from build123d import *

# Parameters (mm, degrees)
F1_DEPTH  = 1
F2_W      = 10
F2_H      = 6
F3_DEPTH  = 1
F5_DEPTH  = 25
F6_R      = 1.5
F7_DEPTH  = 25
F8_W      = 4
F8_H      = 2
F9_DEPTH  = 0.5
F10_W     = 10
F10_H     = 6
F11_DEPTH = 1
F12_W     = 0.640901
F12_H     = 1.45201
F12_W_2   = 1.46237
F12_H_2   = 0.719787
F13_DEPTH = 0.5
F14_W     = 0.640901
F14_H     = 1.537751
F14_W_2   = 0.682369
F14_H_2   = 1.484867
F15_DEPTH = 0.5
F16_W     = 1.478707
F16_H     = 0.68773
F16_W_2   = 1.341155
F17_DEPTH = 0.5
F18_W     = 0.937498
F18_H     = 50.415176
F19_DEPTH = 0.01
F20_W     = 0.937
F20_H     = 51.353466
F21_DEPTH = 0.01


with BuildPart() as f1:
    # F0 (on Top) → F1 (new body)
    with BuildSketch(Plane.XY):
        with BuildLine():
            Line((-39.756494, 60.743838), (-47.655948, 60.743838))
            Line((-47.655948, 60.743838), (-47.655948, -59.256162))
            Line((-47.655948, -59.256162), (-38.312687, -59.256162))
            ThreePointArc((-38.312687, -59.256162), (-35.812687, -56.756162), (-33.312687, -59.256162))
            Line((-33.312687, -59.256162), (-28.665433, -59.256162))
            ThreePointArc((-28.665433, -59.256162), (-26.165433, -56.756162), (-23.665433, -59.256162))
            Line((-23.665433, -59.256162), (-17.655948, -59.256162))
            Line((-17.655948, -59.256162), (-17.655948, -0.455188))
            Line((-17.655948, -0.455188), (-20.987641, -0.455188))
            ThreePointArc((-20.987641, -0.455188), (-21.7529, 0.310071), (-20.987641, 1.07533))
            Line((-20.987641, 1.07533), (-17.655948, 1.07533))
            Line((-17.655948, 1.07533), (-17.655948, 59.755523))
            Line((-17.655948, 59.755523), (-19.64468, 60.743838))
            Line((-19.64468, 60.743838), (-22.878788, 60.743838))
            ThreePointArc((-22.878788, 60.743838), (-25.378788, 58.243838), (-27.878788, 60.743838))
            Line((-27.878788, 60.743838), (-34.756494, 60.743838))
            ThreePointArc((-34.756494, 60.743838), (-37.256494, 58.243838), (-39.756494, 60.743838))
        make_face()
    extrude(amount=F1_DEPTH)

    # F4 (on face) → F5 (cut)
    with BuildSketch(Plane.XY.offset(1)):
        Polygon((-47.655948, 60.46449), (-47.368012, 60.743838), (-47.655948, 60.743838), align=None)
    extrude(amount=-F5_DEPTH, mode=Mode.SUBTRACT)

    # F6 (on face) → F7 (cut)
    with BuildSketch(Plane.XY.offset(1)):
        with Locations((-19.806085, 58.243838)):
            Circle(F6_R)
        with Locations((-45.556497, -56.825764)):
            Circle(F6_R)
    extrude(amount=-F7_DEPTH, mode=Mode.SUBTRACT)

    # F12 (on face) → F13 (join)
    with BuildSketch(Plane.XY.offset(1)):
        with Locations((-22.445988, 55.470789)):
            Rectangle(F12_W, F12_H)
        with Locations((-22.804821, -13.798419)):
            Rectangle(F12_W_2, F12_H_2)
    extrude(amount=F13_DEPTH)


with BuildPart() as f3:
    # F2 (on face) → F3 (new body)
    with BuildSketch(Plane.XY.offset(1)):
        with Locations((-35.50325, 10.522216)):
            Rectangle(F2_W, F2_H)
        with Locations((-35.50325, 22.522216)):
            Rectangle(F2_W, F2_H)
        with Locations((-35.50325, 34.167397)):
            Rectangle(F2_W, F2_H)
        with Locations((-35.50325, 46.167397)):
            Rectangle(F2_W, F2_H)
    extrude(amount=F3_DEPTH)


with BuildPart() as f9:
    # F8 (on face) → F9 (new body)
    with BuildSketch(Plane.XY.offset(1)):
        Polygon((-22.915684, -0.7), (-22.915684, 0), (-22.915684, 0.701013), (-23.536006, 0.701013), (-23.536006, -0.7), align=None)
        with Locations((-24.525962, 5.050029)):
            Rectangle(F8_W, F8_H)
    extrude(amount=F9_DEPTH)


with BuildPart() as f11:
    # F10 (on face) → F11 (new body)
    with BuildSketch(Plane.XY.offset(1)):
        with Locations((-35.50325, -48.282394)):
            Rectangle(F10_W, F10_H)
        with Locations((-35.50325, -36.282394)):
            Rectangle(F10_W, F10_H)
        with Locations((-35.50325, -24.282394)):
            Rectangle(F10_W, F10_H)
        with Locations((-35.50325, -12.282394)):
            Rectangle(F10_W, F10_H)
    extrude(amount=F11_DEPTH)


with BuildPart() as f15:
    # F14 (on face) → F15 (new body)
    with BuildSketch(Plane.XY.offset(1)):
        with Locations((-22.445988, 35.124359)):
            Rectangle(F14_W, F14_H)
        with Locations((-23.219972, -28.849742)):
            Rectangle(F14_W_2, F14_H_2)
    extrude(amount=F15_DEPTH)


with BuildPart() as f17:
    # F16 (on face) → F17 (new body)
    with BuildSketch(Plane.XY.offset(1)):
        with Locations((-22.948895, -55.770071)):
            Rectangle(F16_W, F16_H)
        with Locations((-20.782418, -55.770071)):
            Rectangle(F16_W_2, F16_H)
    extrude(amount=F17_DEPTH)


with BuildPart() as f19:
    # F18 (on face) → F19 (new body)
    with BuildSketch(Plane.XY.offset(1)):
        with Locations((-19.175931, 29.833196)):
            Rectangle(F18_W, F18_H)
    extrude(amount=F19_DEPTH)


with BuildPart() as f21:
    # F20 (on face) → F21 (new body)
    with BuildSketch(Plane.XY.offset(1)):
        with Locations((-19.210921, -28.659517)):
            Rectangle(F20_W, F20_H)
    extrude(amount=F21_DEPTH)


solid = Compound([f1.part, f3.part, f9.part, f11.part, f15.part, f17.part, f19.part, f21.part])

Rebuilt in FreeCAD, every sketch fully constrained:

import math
import FreeCAD as App
import Part
import Sketcher

doc = App.newDocument("Part")
body = doc.addObject("PartDesign::Body", "Body")

# Sketch on XY plane
sketch1 = body.newObject("Sketcher::SketchObject", "Sketch")
sketch1.AttachmentSupport = (doc.getObject("XY_Plane"), [""])
sketch1.MapMode = "FlatFace"
sketch1.addGeometry(Part.LineSegment(App.Vector(-39.8, 60.7, 0), App.Vector(-47.7, 60.7, 0)), False)
sketch1.addGeometry(Part.LineSegment(App.Vector(-47.7, 60.7, 0), App.Vector(-47.7, -59.3, 0)), False)
sketch1.addGeometry(Part.LineSegment(App.Vector(-47.7, -59.3, 0), App.Vector(-38.3, -59.3, 0)), False)
sketch1.addGeometry(Part.ArcOfCircle(Part.Circle(App.Vector(-35.8, -59.3, 0), App.Vector(0, 0, 1), 2.5), math.radians(0), math.radians(180)), False)
sketch1.addGeometry(Part.LineSegment(App.Vector(-33.3, -59.3, 0), App.Vector(-28.7, -59.3, 0)), False)
sketch1.addGeometry(Part.ArcOfCircle(Part.Circle(App.Vector(-26.2, -59.3, 0), App.Vector(0, 0, 1), 2.5), math.radians(0), math.radians(180)), False)
sketch1.addGeometry(Part.LineSegment(App.Vector(-23.7, -59.3, 0), App.Vector(-17.7, -59.3, 0)), False)
sketch1.addGeometry(Part.LineSegment(App.Vector(-17.7, -59.3, 0), App.Vector(-17.7, -0.5, 0)), False)
sketch1.addGeometry(Part.LineSegment(App.Vector(-17.7, -0.5, 0), App.Vector(-21, -0.5, 0)), False)
sketch1.addGeometry(Part.ArcOfCircle(Part.Circle(App.Vector(-21, 0.3, 0), App.Vector(0, 0, 1), 0.8), math.radians(90), math.radians(270)), False)
sketch1.addGeometry(Part.LineSegment(App.Vector(-21, 1.1, 0), App.Vector(-17.7, 1.1, 0)), False)
sketch1.addGeometry(Part.LineSegment(App.Vector(-17.7, 1.1, 0), App.Vector(-17.7, 59.8, 0)), False)
sketch1.addGeometry(Part.LineSegment(App.Vector(-17.7, 59.8, 0), App.Vector(-19.6, 60.7, 0)), False)
sketch1.addGeometry(Part.LineSegment(App.Vector(-19.6, 60.7, 0), App.Vector(-22.9, 60.7, 0)), False)
sketch1.addGeometry(Part.ArcOfCircle(Part.Circle(App.Vector(-25.4, 60.7, 0), App.Vector(0, 0, 1), 2.5), math.radians(180), math.radians(360)), False)
sketch1.addGeometry(Part.LineSegment(App.Vector(-27.9, 60.7, 0), App.Vector(-34.8, 60.7, 0)), False)
sketch1.addGeometry(Part.ArcOfCircle(Part.Circle(App.Vector(-37.3, 60.7, 0), App.Vector(0, 0, 1), 2.5), math.radians(180), math.radians(360)), False)
sketch1.addConstraint(Sketcher.Constraint("Coincident", 0, 2, 1, 1))
sketch1.addConstraint(Sketcher.Constraint("Coincident", 1, 2, 2, 1))
sketch1.addConstraint(Sketcher.Constraint("Coincident", 2, 2, 3, 2))
sketch1.addConstraint(Sketcher.Constraint("Coincident", 3, 1, 4, 1))
sketch1.addConstraint(Sketcher.Constraint("Coincident", 4, 2, 5, 2))
sketch1.addConstraint(Sketcher.Constraint("Coincident", 5, 1, 6, 1))
sketch1.addConstraint(Sketcher.Constraint("Coincident", 6, 2, 7, 1))
sketch1.addConstraint(Sketcher.Constraint("Coincident", 7, 2, 8, 1))
sketch1.addConstraint(Sketcher.Constraint("Tangent", 8, 2, 9, 2))
sketch1.addConstraint(Sketcher.Constraint("Tangent", 9, 1, 10, 1))
sketch1.addConstraint(Sketcher.Constraint("Coincident", 10, 2, 11, 1))
sketch1.addConstraint(Sketcher.Constraint("Coincident", 11, 2, 12, 1))
sketch1.addConstraint(Sketcher.Constraint("Coincident", 12, 2, 13, 1))
sketch1.addConstraint(Sketcher.Constraint("Coincident", 13, 2, 14, 2))
sketch1.addConstraint(Sketcher.Constraint("Coincident", 14, 1, 15, 1))
sketch1.addConstraint(Sketcher.Constraint("Coincident", 15, 2, 16, 2))
sketch1.addConstraint(Sketcher.Constraint("Coincident", 16, 1, 0, 1))
sketch1.addConstraint(Sketcher.Constraint("Horizontal", 0))
sketch1.addConstraint(Sketcher.Constraint("Vertical", 1))
sketch1.addConstraint(Sketcher.Constraint("Horizontal", 2))
sketch1.addConstraint(Sketcher.Constraint("Horizontal", 4))
sketch1.addConstraint(Sketcher.Constraint("Horizontal", 6))
sketch1.addConstraint(Sketcher.Constraint("Vertical", 7))
sketch1.addConstraint(Sketcher.Constraint("Horizontal", 8))
sketch1.addConstraint(Sketcher.Constraint("Horizontal", 10))
sketch1.addConstraint(Sketcher.Constraint("Vertical", 11))
sketch1.addConstraint(Sketcher.Constraint("Horizontal", 13))
sketch1.addConstraint(Sketcher.Constraint("Horizontal", 15))
sketch1.addConstraint(Sketcher.Constraint("Equal", 3, 5))
sketch1.addConstraint(Sketcher.Constraint("Equal", 5, 14))
sketch1.addConstraint(Sketcher.Constraint("Equal", 14, 16))
sketch1.addConstraint(Sketcher.Constraint("Horizontal", 3, 3, 5, 3))
sketch1.addConstraint(Sketcher.Constraint("Horizontal", 14, 3, 16, 3))
sketch1.addConstraint(Sketcher.Constraint("Horizontal", 16, 3, 0, 2))
sketch1.addConstraint(Sketcher.Constraint("Horizontal", 5, 3, 1, 2))
sketch1.addConstraint(Sketcher.Constraint("Horizontal", 2, 2, 3, 1))
sketch1.addConstraint(Sketcher.Constraint("Horizontal", 4, 2, 5, 1))
sketch1.addConstraint(Sketcher.Constraint("Horizontal", 0, 2, 12, 2))
sketch1.addConstraint(Sketcher.Constraint("Horizontal", 13, 2, 14, 1))
sketch1.addConstraint(Sketcher.Constraint("Vertical", 7, 2, 10, 2))
sketch1.addConstraint(Sketcher.Constraint("Radius", 3, 2.5))
sketch1.addConstraint(Sketcher.Constraint("DistanceY", 1, 2, 1, 1, 120.0))
sketch1.addConstraint(Sketcher.Constraint("DistanceX", 0, 2, 11, 2, 30.0))
sketch1.addConstraint(Sketcher.Constraint("Radius", 9, 0.765259))
sketch1.addConstraint(Sketcher.Constraint("DistanceX", 2, 1, 2, 2, 9.343261))
sketch1.addConstraint(Sketcher.Constraint("DistanceX", 3, 3, 14, 3, 10.433899))
sketch1.addConstraint(Sketcher.Constraint("Distance", 12, 2.22077))
sketch1.addConstraint(Sketcher.Constraint("DistanceX", 0, 2, 0, 1, 7.899454))
sketch1.addConstraint(Sketcher.Constraint("DistanceX", 4, 1, 4, 2, 4.647254))
sketch1.addConstraint(Sketcher.Constraint("DistanceX", 8, 2, 8, 1, 3.331693))
sketch1.addConstraint(Sketcher.Constraint("DistanceX", 13, 2, 13, 1, 3.234108))
sketch1.addConstraint(Sketcher.Constraint("DistanceY", 7, 1, 7, 2, 58.800974))
sketch1.addConstraint(Sketcher.Constraint("DistanceX", 9, 3, -1, 1, 20.987641))
sketch1.addConstraint(Sketcher.Constraint("DistanceY", -1, 1, 9, 3, 0.310071))
pad1 = body.newObject("PartDesign::Pad", "Pad")
pad1.Profile = sketch1
pad1.Length = 1

# Sketch on XY plane
sketch2 = body.newObject("Sketcher::SketchObject", "Sketch001")
sketch2.AttachmentSupport = (doc.getObject("XY_Plane"), [""])
sketch2.MapMode = "FlatFace"
sketch2.AttachmentOffset = App.Placement(App.Vector(0, 0, 1), App.Rotation())
sketch2.addGeometry(Part.LineSegment(App.Vector(-47.66, 60.46, 0), App.Vector(-47.37, 60.74, 0)), False)
sketch2.addGeometry(Part.LineSegment(App.Vector(-47.37, 60.74, 0), App.Vector(-47.66, 60.74, 0)), False)
sketch2.addGeometry(Part.LineSegment(App.Vector(-47.66, 60.74, 0), App.Vector(-47.66, 60.46, 0)), False)
sketch2.addConstraint(Sketcher.Constraint("Coincident", 0, 2, 1, 1))
sketch2.addConstraint(Sketcher.Constraint("Coincident", 1, 2, 2, 1))
sketch2.addConstraint(Sketcher.Constraint("Coincident", 2, 2, 0, 1))
sketch2.addConstraint(Sketcher.Constraint("Horizontal", 1))
sketch2.addConstraint(Sketcher.Constraint("Vertical", 2))
sketch2.addConstraint(Sketcher.Constraint("DistanceX", 1, 2, 1, 1, 0.287936))
sketch2.addConstraint(Sketcher.Constraint("DistanceY", 2, 2, 2, 1, 0.279348))
sketch2.addConstraint(Sketcher.Constraint("DistanceX", 1, 2, -1, 1, 47.655948))
sketch2.addConstraint(Sketcher.Constraint("DistanceY", -1, 1, 2, 2, 60.46449))
pocket1 = body.newObject("PartDesign::Pocket", "Pocket")
pocket1.Profile = sketch2
pocket1.Length = 25

# Sketch on XY plane
sketch3 = body.newObject("Sketcher::SketchObject", "Sketch002")
sketch3.AttachmentSupport = (doc.getObject("XY_Plane"), [""])
sketch3.MapMode = "FlatFace"
sketch3.AttachmentOffset = App.Placement(App.Vector(0, 0, 1), App.Rotation())
sketch3.addGeometry(Part.Circle(App.Vector(-19.8, 58.2, 0), App.Vector(0, 0, 1), 1.5), False)
sketch3.addGeometry(Part.Circle(App.Vector(-45.6, -56.8, 0), App.Vector(0, 0, 1), 1.5), False)
sketch3.addConstraint(Sketcher.Constraint("Equal", 0, 1))
sketch3.addConstraint(Sketcher.Constraint("Diameter", 0, 3.0))
sketch3.addConstraint(Sketcher.Constraint("DistanceX", 0, 3, -1, 1, 19.806085))
sketch3.addConstraint(Sketcher.Constraint("DistanceY", -1, 1, 0, 3, 58.243838))
sketch3.addConstraint(Sketcher.Constraint("DistanceX", 1, 3, -1, 1, 45.556497))
sketch3.addConstraint(Sketcher.Constraint("DistanceY", 1, 3, -1, 1, 56.825764))
pocket2 = body.newObject("PartDesign::Pocket", "Pocket001")
pocket2.Profile = sketch3
pocket2.Length = 25

# Sketch on XY plane
sketch4 = body.newObject("Sketcher::SketchObject", "Sketch003")
sketch4.AttachmentSupport = (doc.getObject("XY_Plane"), [""])
sketch4.MapMode = "FlatFace"
sketch4.AttachmentOffset = App.Placement(App.Vector(0, 0, 1), App.Rotation())
sketch4.addGeometry(Part.LineSegment(App.Vector(-22.8, 56.2, 0), App.Vector(-22.8, 54.7, 0)), False)
sketch4.addGeometry(Part.LineSegment(App.Vector(-22.8, 54.7, 0), App.Vector(-22.1, 54.7, 0)), False)
sketch4.addGeometry(Part.LineSegment(App.Vector(-22.1, 54.7, 0), App.Vector(-22.1, 56.2, 0)), False)
sketch4.addGeometry(Part.LineSegment(App.Vector(-22.1, 56.2, 0), App.Vector(-22.8, 56.2, 0)), False)
sketch4.addGeometry(Part.LineSegment(App.Vector(-23.5, -13.4, 0), App.Vector(-23.5, -14.2, 0)), False)
sketch4.addGeometry(Part.LineSegment(App.Vector(-23.5, -14.2, 0), App.Vector(-22.1, -14.2, 0)), False)
sketch4.addGeometry(Part.LineSegment(App.Vector(-22.1, -14.2, 0), App.Vector(-22.1, -13.4, 0)), False)
sketch4.addGeometry(Part.LineSegment(App.Vector(-22.1, -13.4, 0), App.Vector(-23.5, -13.4, 0)), False)
sketch4.addConstraint(Sketcher.Constraint("Coincident", 0, 2, 1, 1))
sketch4.addConstraint(Sketcher.Constraint("Coincident", 1, 2, 2, 1))
sketch4.addConstraint(Sketcher.Constraint("Coincident", 2, 2, 3, 1))
sketch4.addConstraint(Sketcher.Constraint("Coincident", 3, 2, 0, 1))
sketch4.addConstraint(Sketcher.Constraint("Coincident", 4, 2, 5, 1))
sketch4.addConstraint(Sketcher.Constraint("Coincident", 5, 2, 6, 1))
sketch4.addConstraint(Sketcher.Constraint("Coincident", 6, 2, 7, 1))
sketch4.addConstraint(Sketcher.Constraint("Coincident", 7, 2, 4, 1))
sketch4.addConstraint(Sketcher.Constraint("Vertical", 0))
sketch4.addConstraint(Sketcher.Constraint("Horizontal", 1))
sketch4.addConstraint(Sketcher.Constraint("Vertical", 2))
sketch4.addConstraint(Sketcher.Constraint("Horizontal", 3))
sketch4.addConstraint(Sketcher.Constraint("Vertical", 4))
sketch4.addConstraint(Sketcher.Constraint("Horizontal", 5))
sketch4.addConstraint(Sketcher.Constraint("Vertical", 6))
sketch4.addConstraint(Sketcher.Constraint("Horizontal", 7))
sketch4.addConstraint(Sketcher.Constraint("DistanceX", 1, 1, 1, 2, 0.640901))
sketch4.addConstraint(Sketcher.Constraint("DistanceX", 5, 1, 5, 2, 1.46237))
sketch4.addConstraint(Sketcher.Constraint("DistanceY", 0, 2, 0, 1, 1.45201))
sketch4.addConstraint(Sketcher.Constraint("DistanceX", 1, 2, 5, 2, 0.051901))
sketch4.addConstraint(Sketcher.Constraint("DistanceY", 4, 2, 4, 1, 0.719787))
sketch4.addConstraint(Sketcher.Constraint("DistanceX", 0, 2, -1, 1, 22.766438))
sketch4.addConstraint(Sketcher.Constraint("DistanceY", 6, 2, 1, 2, 68.18331))
sketch4.addConstraint(Sketcher.Constraint("DistanceY", -1, 1, 0, 2, 54.744784))
pad2 = body.newObject("PartDesign::Pad", "Pad001")
pad2.Profile = sketch4
pad2.Length = 0.5
body2 = doc.addObject("PartDesign::Body", "Body001")
body2.AllowCompound = True

# Sketch on XY plane
sketch5 = body2.newObject("Sketcher::SketchObject", "Sketch004")
sketch5.AttachmentSupport = (doc.getObject("XY_Plane001"), [""])
sketch5.MapMode = "FlatFace"
sketch5.AttachmentOffset = App.Placement(App.Vector(0, 0, 1), App.Rotation())
sketch5.addGeometry(Part.LineSegment(App.Vector(-41, 14, 0), App.Vector(-41, 8, 0)), False)
sketch5.addGeometry(Part.LineSegment(App.Vector(-41, 8, 0), App.Vector(-31, 8, 0)), False)
sketch5.addGeometry(Part.LineSegment(App.Vector(-31, 8, 0), App.Vector(-31, 14, 0)), False)
sketch5.addGeometry(Part.LineSegment(App.Vector(-31, 14, 0), App.Vector(-41, 14, 0)), False)
sketch5.addGeometry(Part.LineSegment(App.Vector(-41, 26, 0), App.Vector(-41, 20, 0)), False)
sketch5.addGeometry(Part.LineSegment(App.Vector(-41, 20, 0), App.Vector(-31, 20, 0)), False)
sketch5.addGeometry(Part.LineSegment(App.Vector(-31, 20, 0), App.Vector(-31, 26, 0)), False)
sketch5.addGeometry(Part.LineSegment(App.Vector(-31, 26, 0), App.Vector(-41, 26, 0)), False)
sketch5.addGeometry(Part.LineSegment(App.Vector(-41, 37, 0), App.Vector(-41, 31, 0)), False)
sketch5.addGeometry(Part.LineSegment(App.Vector(-41, 31, 0), App.Vector(-31, 31, 0)), False)
sketch5.addGeometry(Part.LineSegment(App.Vector(-31, 31, 0), App.Vector(-31, 37, 0)), False)
sketch5.addGeometry(Part.LineSegment(App.Vector(-31, 37, 0), App.Vector(-41, 37, 0)), False)
sketch5.addGeometry(Part.LineSegment(App.Vector(-41, 49, 0), App.Vector(-41, 43, 0)), False)
sketch5.addGeometry(Part.LineSegment(App.Vector(-41, 43, 0), App.Vector(-31, 43, 0)), False)
sketch5.addGeometry(Part.LineSegment(App.Vector(-31, 43, 0), App.Vector(-31, 49, 0)), False)
sketch5.addGeometry(Part.LineSegment(App.Vector(-31, 49, 0), App.Vector(-41, 49, 0)), False)
sketch5.addConstraint(Sketcher.Constraint("Coincident", 0, 2, 1, 1))
sketch5.addConstraint(Sketcher.Constraint("Coincident", 1, 2, 2, 1))
sketch5.addConstraint(Sketcher.Constraint("Coincident", 2, 2, 3, 1))
sketch5.addConstraint(Sketcher.Constraint("Coincident", 3, 2, 0, 1))
sketch5.addConstraint(Sketcher.Constraint("Coincident", 4, 2, 5, 1))
sketch5.addConstraint(Sketcher.Constraint("Coincident", 5, 2, 6, 1))
sketch5.addConstraint(Sketcher.Constraint("Coincident", 6, 2, 7, 1))
sketch5.addConstraint(Sketcher.Constraint("Coincident", 7, 2, 4, 1))
sketch5.addConstraint(Sketcher.Constraint("Coincident", 8, 2, 9, 1))
sketch5.addConstraint(Sketcher.Constraint("Coincident", 9, 2, 10, 1))
sketch5.addConstraint(Sketcher.Constraint("Coincident", 10, 2, 11, 1))
sketch5.addConstraint(Sketcher.Constraint("Coincident", 11, 2, 8, 1))
sketch5.addConstraint(Sketcher.Constraint("Coincident", 12, 2, 13, 1))
sketch5.addConstraint(Sketcher.Constraint("Coincident", 13, 2, 14, 1))
sketch5.addConstraint(Sketcher.Constraint("Coincident", 14, 2, 15, 1))
sketch5.addConstraint(Sketcher.Constraint("Coincident", 15, 2, 12, 1))
sketch5.addConstraint(Sketcher.Constraint("Vertical", 0))
sketch5.addConstraint(Sketcher.Constraint("Horizontal", 1))
sketch5.addConstraint(Sketcher.Constraint("Vertical", 2))
sketch5.addConstraint(Sketcher.Constraint("Horizontal", 3))
sketch5.addConstraint(Sketcher.Constraint("Vertical", 4))
sketch5.addConstraint(Sketcher.Constraint("Horizontal", 5))
sketch5.addConstraint(Sketcher.Constraint("Vertical", 6))
sketch5.addConstraint(Sketcher.Constraint("Horizontal", 7))
sketch5.addConstraint(Sketcher.Constraint("Vertical", 8))
sketch5.addConstraint(Sketcher.Constraint("Horizontal", 9))
sketch5.addConstraint(Sketcher.Constraint("Vertical", 10))
sketch5.addConstraint(Sketcher.Constraint("Horizontal", 11))
sketch5.addConstraint(Sketcher.Constraint("Vertical", 12))
sketch5.addConstraint(Sketcher.Constraint("Horizontal", 13))
sketch5.addConstraint(Sketcher.Constraint("Vertical", 14))
sketch5.addConstraint(Sketcher.Constraint("Horizontal", 15))
sketch5.addConstraint(Sketcher.Constraint("Vertical", 3, 2, 4, 2))
sketch5.addConstraint(Sketcher.Constraint("Vertical", 2, 2, 5, 2))
sketch5.addConstraint(Sketcher.Constraint("Vertical", 7, 2, 8, 2))
sketch5.addConstraint(Sketcher.Constraint("Vertical", 6, 2, 9, 2))
sketch5.addConstraint(Sketcher.Constraint("Vertical", 11, 2, 12, 2))
sketch5.addConstraint(Sketcher.Constraint("Vertical", 10, 2, 13, 2))
sketch5.addConstraint(Sketcher.Constraint("Equal", 2, 4))
sketch5.addConstraint(Sketcher.Constraint("Equal", 6, 8))
sketch5.addConstraint(Sketcher.Constraint("Equal", 10, 12))
sketch5.addConstraint(Sketcher.Constraint("DistanceX", 1, 1, 1, 2, 10.0))
sketch5.addConstraint(Sketcher.Constraint("DistanceY", 0, 2, 0, 1, 6.0))
sketch5.addConstraint(Sketcher.Constraint("DistanceY", 3, 2, 4, 2, 6.0))
sketch5.addConstraint(Sketcher.Constraint("DistanceY", 11, 2, 12, 2, 6.0))
sketch5.addConstraint(Sketcher.Constraint("DistanceX", 0, 2, -1, 1, 40.50325))
sketch5.addConstraint(Sketcher.Constraint("DistanceY", 7, 2, 8, 2, 5.645181))
sketch5.addConstraint(Sketcher.Constraint("DistanceY", -1, 1, 0, 2, 7.522216))
pad3 = body2.newObject("PartDesign::Pad", "Pad002")
pad3.Profile = sketch5
pad3.Length = 1
body3 = doc.addObject("PartDesign::Body", "Body002")
body3.AllowCompound = True

# Sketch on XY plane
sketch6 = body3.newObject("Sketcher::SketchObject", "Sketch005")
sketch6.AttachmentSupport = (doc.getObject("XY_Plane002"), [""])
sketch6.MapMode = "FlatFace"
sketch6.AttachmentOffset = App.Placement(App.Vector(0, 0, 1), App.Rotation())
sketch6.addGeometry(Part.LineSegment(App.Vector(-22.9, -0.7, 0), App.Vector(-22.9, 0.7, 0)), False)
sketch6.addGeometry(Part.LineSegment(App.Vector(-22.9, 0.7, 0), App.Vector(-23.5, 0.7, 0)), False)
sketch6.addGeometry(Part.LineSegment(App.Vector(-23.5, 0.7, 0), App.Vector(-23.5, -0.7, 0)), False)
sketch6.addGeometry(Part.LineSegment(App.Vector(-23.5, -0.7, 0), App.Vector(-22.9, -0.7, 0)), False)
sketch6.addGeometry(Part.LineSegment(App.Vector(-26.5, 6.1, 0), App.Vector(-26.5, 4.1, 0)), False)
sketch6.addGeometry(Part.LineSegment(App.Vector(-26.5, 4.1, 0), App.Vector(-22.5, 4.1, 0)), False)
sketch6.addGeometry(Part.LineSegment(App.Vector(-22.5, 4.1, 0), App.Vector(-22.5, 6.1, 0)), False)
sketch6.addGeometry(Part.LineSegment(App.Vector(-22.5, 6.1, 0), App.Vector(-26.5, 6.1, 0)), False)
sketch6.addConstraint(Sketcher.Constraint("Coincident", 0, 2, 1, 1))
sketch6.addConstraint(Sketcher.Constraint("Coincident", 1, 2, 2, 1))
sketch6.addConstraint(Sketcher.Constraint("Coincident", 2, 2, 3, 1))
sketch6.addConstraint(Sketcher.Constraint("Coincident", 3, 2, 0, 1))
sketch6.addConstraint(Sketcher.Constraint("Coincident", 4, 2, 5, 1))
sketch6.addConstraint(Sketcher.Constraint("Coincident", 5, 2, 6, 1))
sketch6.addConstraint(Sketcher.Constraint("Coincident", 6, 2, 7, 1))
sketch6.addConstraint(Sketcher.Constraint("Coincident", 7, 2, 4, 1))
sketch6.addConstraint(Sketcher.Constraint("Vertical", 0))
sketch6.addConstraint(Sketcher.Constraint("Horizontal", 1))
sketch6.addConstraint(Sketcher.Constraint("Vertical", 2))
sketch6.addConstraint(Sketcher.Constraint("Horizontal", 3))
sketch6.addConstraint(Sketcher.Constraint("Vertical", 4))
sketch6.addConstraint(Sketcher.Constraint("Horizontal", 5))
sketch6.addConstraint(Sketcher.Constraint("Vertical", 6))
sketch6.addConstraint(Sketcher.Constraint("Horizontal", 7))
sketch6.addConstraint(Sketcher.Constraint("DistanceX", 5, 1, 5, 2, 4.0))
sketch6.addConstraint(Sketcher.Constraint("DistanceY", 4, 2, 4, 1, 2.0))
sketch6.addConstraint(Sketcher.Constraint("DistanceY", 2, 2, -1, 1, 0.7))
sketch6.addConstraint(Sketcher.Constraint("DistanceX", 1, 2, 1, 1, 0.620322))
sketch6.addConstraint(Sketcher.Constraint("DistanceY", 0, 1, 0, 2, 1.401013))
sketch6.addConstraint(Sketcher.Constraint("DistanceX", 4, 2, -1, 1, 26.525962))
sketch6.addConstraint(Sketcher.Constraint("DistanceY", -1, 1, 4, 2, 4.050029))
sketch6.addConstraint(Sketcher.Constraint("DistanceX", 4, 2, 0, 2, 3.610278))
pad4 = body3.newObject("PartDesign::Pad", "Pad003")
pad4.Profile = sketch6
pad4.Length = 0.5
body4 = doc.addObject("PartDesign::Body", "Body003")
body4.AllowCompound = True

# Sketch on XY plane
sketch7 = body4.newObject("Sketcher::SketchObject", "Sketch006")
sketch7.AttachmentSupport = (doc.getObject("XY_Plane003"), [""])
sketch7.MapMode = "FlatFace"
sketch7.AttachmentOffset = App.Placement(App.Vector(0, 0, 1), App.Rotation())
sketch7.addGeometry(Part.LineSegment(App.Vector(-41, -45, 0), App.Vector(-41, -51, 0)), False)
sketch7.addGeometry(Part.LineSegment(App.Vector(-41, -51, 0), App.Vector(-31, -51, 0)), False)
sketch7.addGeometry(Part.LineSegment(App.Vector(-31, -51, 0), App.Vector(-31, -45, 0)), False)
sketch7.addGeometry(Part.LineSegment(App.Vector(-31, -45, 0), App.Vector(-41, -45, 0)), False)
sketch7.addGeometry(Part.LineSegment(App.Vector(-41, -33, 0), App.Vector(-41, -39, 0)), False)
sketch7.addGeometry(Part.LineSegment(App.Vector(-41, -39, 0), App.Vector(-31, -39, 0)), False)
sketch7.addGeometry(Part.LineSegment(App.Vector(-31, -39, 0), App.Vector(-31, -33, 0)), False)
sketch7.addGeometry(Part.LineSegment(App.Vector(-31, -33, 0), App.Vector(-41, -33, 0)), False)
sketch7.addGeometry(Part.LineSegment(App.Vector(-41, -21, 0), App.Vector(-41, -27, 0)), False)
sketch7.addGeometry(Part.LineSegment(App.Vector(-41, -27, 0), App.Vector(-31, -27, 0)), False)
sketch7.addGeometry(Part.LineSegment(App.Vector(-31, -27, 0), App.Vector(-31, -21, 0)), False)
sketch7.addGeometry(Part.LineSegment(App.Vector(-31, -21, 0), App.Vector(-41, -21, 0)), False)
sketch7.addGeometry(Part.LineSegment(App.Vector(-41, -9, 0), App.Vector(-41, -15, 0)), False)
sketch7.addGeometry(Part.LineSegment(App.Vector(-41, -15, 0), App.Vector(-31, -15, 0)), False)
sketch7.addGeometry(Part.LineSegment(App.Vector(-31, -15, 0), App.Vector(-31, -9, 0)), False)
sketch7.addGeometry(Part.LineSegment(App.Vector(-31, -9, 0), App.Vector(-41, -9, 0)), False)
sketch7.addConstraint(Sketcher.Constraint("Coincident", 0, 2, 1, 1))
sketch7.addConstraint(Sketcher.Constraint("Coincident", 1, 2, 2, 1))
sketch7.addConstraint(Sketcher.Constraint("Coincident", 2, 2, 3, 1))
sketch7.addConstraint(Sketcher.Constraint("Coincident", 3, 2, 0, 1))
sketch7.addConstraint(Sketcher.Constraint("Coincident", 4, 2, 5, 1))
sketch7.addConstraint(Sketcher.Constraint("Coincident", 5, 2, 6, 1))
sketch7.addConstraint(Sketcher.Constraint("Coincident", 6, 2, 7, 1))
sketch7.addConstraint(Sketcher.Constraint("Coincident", 7, 2, 4, 1))
sketch7.addConstraint(Sketcher.Constraint("Coincident", 8, 2, 9, 1))
sketch7.addConstraint(Sketcher.Constraint("Coincident", 9, 2, 10, 1))
sketch7.addConstraint(Sketcher.Constraint("Coincident", 10, 2, 11, 1))
sketch7.addConstraint(Sketcher.Constraint("Coincident", 11, 2, 8, 1))
sketch7.addConstraint(Sketcher.Constraint("Coincident", 12, 2, 13, 1))
sketch7.addConstraint(Sketcher.Constraint("Coincident", 13, 2, 14, 1))
sketch7.addConstraint(Sketcher.Constraint("Coincident", 14, 2, 15, 1))
sketch7.addConstraint(Sketcher.Constraint("Coincident", 15, 2, 12, 1))
sketch7.addConstraint(Sketcher.Constraint("Vertical", 0))
sketch7.addConstraint(Sketcher.Constraint("Horizontal", 1))
sketch7.addConstraint(Sketcher.Constraint("Vertical", 2))
sketch7.addConstraint(Sketcher.Constraint("Horizontal", 3))
sketch7.addConstraint(Sketcher.Constraint("Vertical", 4))
sketch7.addConstraint(Sketcher.Constraint("Horizontal", 5))
sketch7.addConstraint(Sketcher.Constraint("Vertical", 6))
sketch7.addConstraint(Sketcher.Constraint("Horizontal", 7))
sketch7.addConstraint(Sketcher.Constraint("Vertical", 8))
sketch7.addConstraint(Sketcher.Constraint("Horizontal", 9))
sketch7.addConstraint(Sketcher.Constraint("Vertical", 10))
sketch7.addConstraint(Sketcher.Constraint("Horizontal", 11))
sketch7.addConstraint(Sketcher.Constraint("Vertical", 12))
sketch7.addConstraint(Sketcher.Constraint("Horizontal", 13))
sketch7.addConstraint(Sketcher.Constraint("Vertical", 14))
sketch7.addConstraint(Sketcher.Constraint("Horizontal", 15))
sketch7.addConstraint(Sketcher.Constraint("Vertical", 3, 2, 4, 2))
sketch7.addConstraint(Sketcher.Constraint("Vertical", 2, 2, 5, 2))
sketch7.addConstraint(Sketcher.Constraint("Vertical", 7, 2, 8, 2))
sketch7.addConstraint(Sketcher.Constraint("Vertical", 6, 2, 9, 2))
sketch7.addConstraint(Sketcher.Constraint("Vertical", 11, 2, 12, 2))
sketch7.addConstraint(Sketcher.Constraint("Vertical", 10, 2, 13, 2))
sketch7.addConstraint(Sketcher.Constraint("Equal", 2, 4))
sketch7.addConstraint(Sketcher.Constraint("Equal", 6, 8))
sketch7.addConstraint(Sketcher.Constraint("Equal", 10, 12))
sketch7.addConstraint(Sketcher.Constraint("DistanceX", 1, 1, 1, 2, 10.0))
sketch7.addConstraint(Sketcher.Constraint("DistanceY", 0, 2, 0, 1, 6.0))
sketch7.addConstraint(Sketcher.Constraint("DistanceY", 3, 2, 4, 2, 6.0))
sketch7.addConstraint(Sketcher.Constraint("DistanceY", 7, 2, 8, 2, 6.0))
sketch7.addConstraint(Sketcher.Constraint("DistanceY", 11, 2, 12, 2, 6.0))
sketch7.addConstraint(Sketcher.Constraint("DistanceX", 0, 2, -1, 1, 40.50325))
sketch7.addConstraint(Sketcher.Constraint("DistanceY", 0, 2, -1, 1, 51.282394))
pad5 = body4.newObject("PartDesign::Pad", "Pad004")
pad5.Profile = sketch7
pad5.Length = 1
body5 = doc.addObject("PartDesign::Body", "Body004")
body5.AllowCompound = True

# Sketch on XY plane
sketch8 = body5.newObject("Sketcher::SketchObject", "Sketch007")
sketch8.AttachmentSupport = (doc.getObject("XY_Plane004"), [""])
sketch8.MapMode = "FlatFace"
sketch8.AttachmentOffset = App.Placement(App.Vector(0, 0, 1), App.Rotation())
sketch8.addGeometry(Part.LineSegment(App.Vector(-22.8, 35.9, 0), App.Vector(-22.8, 34.4, 0)), False)
sketch8.addGeometry(Part.LineSegment(App.Vector(-22.8, 34.4, 0), App.Vector(-22.1, 34.4, 0)), False)
sketch8.addGeometry(Part.LineSegment(App.Vector(-22.1, 34.4, 0), App.Vector(-22.1, 35.9, 0)), False)
sketch8.addGeometry(Part.LineSegment(App.Vector(-22.1, 35.9, 0), App.Vector(-22.8, 35.9, 0)), False)
sketch8.addGeometry(Part.LineSegment(App.Vector(-23.6, -28.1, 0), App.Vector(-23.6, -29.6, 0)), False)
sketch8.addGeometry(Part.LineSegment(App.Vector(-23.6, -29.6, 0), App.Vector(-22.9, -29.6, 0)), False)
sketch8.addGeometry(Part.LineSegment(App.Vector(-22.9, -29.6, 0), App.Vector(-22.9, -28.1, 0)), False)
sketch8.addGeometry(Part.LineSegment(App.Vector(-22.9, -28.1, 0), App.Vector(-23.6, -28.1, 0)), False)
sketch8.addConstraint(Sketcher.Constraint("Coincident", 0, 2, 1, 1))
sketch8.addConstraint(Sketcher.Constraint("Coincident", 1, 2, 2, 1))
sketch8.addConstraint(Sketcher.Constraint("Coincident", 2, 2, 3, 1))
sketch8.addConstraint(Sketcher.Constraint("Coincident", 3, 2, 0, 1))
sketch8.addConstraint(Sketcher.Constraint("Coincident", 4, 2, 5, 1))
sketch8.addConstraint(Sketcher.Constraint("Coincident", 5, 2, 6, 1))
sketch8.addConstraint(Sketcher.Constraint("Coincident", 6, 2, 7, 1))
sketch8.addConstraint(Sketcher.Constraint("Coincident", 7, 2, 4, 1))
sketch8.addConstraint(Sketcher.Constraint("Vertical", 0))
sketch8.addConstraint(Sketcher.Constraint("Horizontal", 1))
sketch8.addConstraint(Sketcher.Constraint("Vertical", 2))
sketch8.addConstraint(Sketcher.Constraint("Horizontal", 3))
sketch8.addConstraint(Sketcher.Constraint("Vertical", 4))
sketch8.addConstraint(Sketcher.Constraint("Horizontal", 5))
sketch8.addConstraint(Sketcher.Constraint("Vertical", 6))
sketch8.addConstraint(Sketcher.Constraint("Horizontal", 7))
sketch8.addConstraint(Sketcher.Constraint("DistanceX", 1, 1, 1, 2, 0.640901))
sketch8.addConstraint(Sketcher.Constraint("DistanceX", 5, 1, 5, 2, 0.682369))
sketch8.addConstraint(Sketcher.Constraint("DistanceY", 0, 2, 0, 1, 1.537751))
sketch8.addConstraint(Sketcher.Constraint("DistanceY", 4, 2, 4, 1, 1.484867))
sketch8.addConstraint(Sketcher.Constraint("DistanceX", 0, 2, -1, 1, 22.766438))
sketch8.addConstraint(Sketcher.Constraint("DistanceY", 6, 2, -1, 1, 28.107308))
sketch8.addConstraint(Sketcher.Constraint("DistanceY", 4, 2, 0, 2, 63.947659))
sketch8.addConstraint(Sketcher.Constraint("DistanceX", 4, 2, 1, 2, 1.435619))
pad6 = body5.newObject("PartDesign::Pad", "Pad005")
pad6.Profile = sketch8
pad6.Length = 0.5
body6 = doc.addObject("PartDesign::Body", "Body005")
body6.AllowCompound = True

# Sketch on XY plane
sketch9 = body6.newObject("Sketcher::SketchObject", "Sketch008")
sketch9.AttachmentSupport = (doc.getObject("XY_Plane005"), [""])
sketch9.MapMode = "FlatFace"
sketch9.AttachmentOffset = App.Placement(App.Vector(0, 0, 1), App.Rotation())
sketch9.addGeometry(Part.LineSegment(App.Vector(-23.7, -55.4, 0), App.Vector(-23.7, -56.1, 0)), False)
sketch9.addGeometry(Part.LineSegment(App.Vector(-23.7, -56.1, 0), App.Vector(-22.2, -56.1, 0)), False)
sketch9.addGeometry(Part.LineSegment(App.Vector(-22.2, -56.1, 0), App.Vector(-22.2, -55.4, 0)), False)
sketch9.addGeometry(Part.LineSegment(App.Vector(-22.2, -55.4, 0), App.Vector(-23.7, -55.4, 0)), False)
sketch9.addGeometry(Part.LineSegment(App.Vector(-21.5, -55.4, 0), App.Vector(-21.5, -56.1, 0)), False)
sketch9.addGeometry(Part.LineSegment(App.Vector(-21.5, -56.1, 0), App.Vector(-20.1, -56.1, 0)), False)
sketch9.addGeometry(Part.LineSegment(App.Vector(-20.1, -56.1, 0), App.Vector(-20.1, -55.4, 0)), False)
sketch9.addGeometry(Part.LineSegment(App.Vector(-20.1, -55.4, 0), App.Vector(-21.5, -55.4, 0)), False)
sketch9.addConstraint(Sketcher.Constraint("Coincident", 0, 2, 1, 1))
sketch9.addConstraint(Sketcher.Constraint("Coincident", 1, 2, 2, 1))
sketch9.addConstraint(Sketcher.Constraint("Coincident", 2, 2, 3, 1))
sketch9.addConstraint(Sketcher.Constraint("Coincident", 3, 2, 0, 1))
sketch9.addConstraint(Sketcher.Constraint("Coincident", 4, 2, 5, 1))
sketch9.addConstraint(Sketcher.Constraint("Coincident", 5, 2, 6, 1))
sketch9.addConstraint(Sketcher.Constraint("Coincident", 6, 2, 7, 1))
sketch9.addConstraint(Sketcher.Constraint("Coincident", 7, 2, 4, 1))
sketch9.addConstraint(Sketcher.Constraint("Vertical", 0))
sketch9.addConstraint(Sketcher.Constraint("Horizontal", 1))
sketch9.addConstraint(Sketcher.Constraint("Vertical", 2))
sketch9.addConstraint(Sketcher.Constraint("Horizontal", 3))
sketch9.addConstraint(Sketcher.Constraint("Vertical", 4))
sketch9.addConstraint(Sketcher.Constraint("Horizontal", 5))
sketch9.addConstraint(Sketcher.Constraint("Vertical", 6))
sketch9.addConstraint(Sketcher.Constraint("Horizontal", 7))
sketch9.addConstraint(Sketcher.Constraint("Horizontal", 1, 2, 4, 2))
sketch9.addConstraint(Sketcher.Constraint("Horizontal", 3, 2, 6, 2))
sketch9.addConstraint(Sketcher.Constraint("DistanceY", 0, 2, 0, 1, 0.68773))
sketch9.addConstraint(Sketcher.Constraint("DistanceX", 1, 2, 5, 2, 2.097701))
sketch9.addConstraint(Sketcher.Constraint("DistanceX", 1, 1, 1, 2, 1.478707))
sketch9.addConstraint(Sketcher.Constraint("DistanceX", 5, 1, 5, 2, 1.341155))
sketch9.addConstraint(Sketcher.Constraint("DistanceX", 0, 2, -1, 1, 23.688249))
sketch9.addConstraint(Sketcher.Constraint("DistanceY", 0, 2, -1, 1, 56.113936))
pad7 = body6.newObject("PartDesign::Pad", "Pad006")
pad7.Profile = sketch9
pad7.Length = 0.5
body7 = doc.addObject("PartDesign::Body", "Body006")

# Sketch on XY plane
sketch10 = body7.newObject("Sketcher::SketchObject", "Sketch009")
sketch10.AttachmentSupport = (doc.getObject("XY_Plane006"), [""])
sketch10.MapMode = "FlatFace"
sketch10.AttachmentOffset = App.Placement(App.Vector(0, 0, 1), App.Rotation())
sketch10.addGeometry(Part.LineSegment(App.Vector(-19.6, 55, 0), App.Vector(-19.6, 4.6, 0)), False)
sketch10.addGeometry(Part.LineSegment(App.Vector(-19.6, 4.6, 0), App.Vector(-18.7, 4.6, 0)), False)
sketch10.addGeometry(Part.LineSegment(App.Vector(-18.7, 4.6, 0), App.Vector(-18.7, 55, 0)), False)
sketch10.addGeometry(Part.LineSegment(App.Vector(-18.7, 55, 0), App.Vector(-19.6, 55, 0)), False)
sketch10.addConstraint(Sketcher.Constraint("Coincident", 0, 2, 1, 1))
sketch10.addConstraint(Sketcher.Constraint("Coincident", 1, 2, 2, 1))
sketch10.addConstraint(Sketcher.Constraint("Coincident", 2, 2, 3, 1))
sketch10.addConstraint(Sketcher.Constraint("Coincident", 3, 2, 0, 1))
sketch10.addConstraint(Sketcher.Constraint("Vertical", 0))
sketch10.addConstraint(Sketcher.Constraint("Horizontal", 1))
sketch10.addConstraint(Sketcher.Constraint("Vertical", 2))
sketch10.addConstraint(Sketcher.Constraint("Horizontal", 3))
sketch10.addConstraint(Sketcher.Constraint("DistanceX", 1, 1, 1, 2, 0.937498))
sketch10.addConstraint(Sketcher.Constraint("DistanceY", 0, 2, 0, 1, 50.415176))
sketch10.addConstraint(Sketcher.Constraint("DistanceX", 0, 2, -1, 1, 19.64468))
sketch10.addConstraint(Sketcher.Constraint("DistanceY", -1, 1, 0, 2, 4.625608))
pad8 = body7.newObject("PartDesign::Pad", "Pad007")
pad8.Profile = sketch10
pad8.Length = 0.01
body8 = doc.addObject("PartDesign::Body", "Body007")

# Sketch on XY plane
sketch11 = body8.newObject("Sketcher::SketchObject", "Sketch010")
sketch11.AttachmentSupport = (doc.getObject("XY_Plane007"), [""])
sketch11.MapMode = "FlatFace"
sketch11.AttachmentOffset = App.Placement(App.Vector(0, 0, 1), App.Rotation())
sketch11.addGeometry(Part.LineSegment(App.Vector(-19.7, -3, 0), App.Vector(-19.7, -54.3, 0)), False)
sketch11.addGeometry(Part.LineSegment(App.Vector(-19.7, -54.3, 0), App.Vector(-18.7, -54.3, 0)), False)
sketch11.addGeometry(Part.LineSegment(App.Vector(-18.7, -54.3, 0), App.Vector(-18.7, -3, 0)), False)
sketch11.addGeometry(Part.LineSegment(App.Vector(-18.7, -3, 0), App.Vector(-19.7, -3, 0)), False)
sketch11.addConstraint(Sketcher.Constraint("Coincident", 0, 2, 1, 1))
sketch11.addConstraint(Sketcher.Constraint("Coincident", 1, 2, 2, 1))
sketch11.addConstraint(Sketcher.Constraint("Coincident", 2, 2, 3, 1))
sketch11.addConstraint(Sketcher.Constraint("Coincident", 3, 2, 0, 1))
sketch11.addConstraint(Sketcher.Constraint("Vertical", 0))
sketch11.addConstraint(Sketcher.Constraint("Horizontal", 1))
sketch11.addConstraint(Sketcher.Constraint("Vertical", 2))
sketch11.addConstraint(Sketcher.Constraint("Horizontal", 3))
sketch11.addConstraint(Sketcher.Constraint("DistanceX", 1, 1, 1, 2, 0.937))
sketch11.addConstraint(Sketcher.Constraint("DistanceY", 0, 2, 0, 1, 51.353466))
sketch11.addConstraint(Sketcher.Constraint("DistanceX", 0, 2, -1, 1, 19.679421))
sketch11.addConstraint(Sketcher.Constraint("DistanceY", 0, 2, -1, 1, 54.33625))
pad9 = body8.newObject("PartDesign::Pad", "Pad008")
pad9.Profile = sketch11
pad9.Length = 0.01

doc.recompute()
